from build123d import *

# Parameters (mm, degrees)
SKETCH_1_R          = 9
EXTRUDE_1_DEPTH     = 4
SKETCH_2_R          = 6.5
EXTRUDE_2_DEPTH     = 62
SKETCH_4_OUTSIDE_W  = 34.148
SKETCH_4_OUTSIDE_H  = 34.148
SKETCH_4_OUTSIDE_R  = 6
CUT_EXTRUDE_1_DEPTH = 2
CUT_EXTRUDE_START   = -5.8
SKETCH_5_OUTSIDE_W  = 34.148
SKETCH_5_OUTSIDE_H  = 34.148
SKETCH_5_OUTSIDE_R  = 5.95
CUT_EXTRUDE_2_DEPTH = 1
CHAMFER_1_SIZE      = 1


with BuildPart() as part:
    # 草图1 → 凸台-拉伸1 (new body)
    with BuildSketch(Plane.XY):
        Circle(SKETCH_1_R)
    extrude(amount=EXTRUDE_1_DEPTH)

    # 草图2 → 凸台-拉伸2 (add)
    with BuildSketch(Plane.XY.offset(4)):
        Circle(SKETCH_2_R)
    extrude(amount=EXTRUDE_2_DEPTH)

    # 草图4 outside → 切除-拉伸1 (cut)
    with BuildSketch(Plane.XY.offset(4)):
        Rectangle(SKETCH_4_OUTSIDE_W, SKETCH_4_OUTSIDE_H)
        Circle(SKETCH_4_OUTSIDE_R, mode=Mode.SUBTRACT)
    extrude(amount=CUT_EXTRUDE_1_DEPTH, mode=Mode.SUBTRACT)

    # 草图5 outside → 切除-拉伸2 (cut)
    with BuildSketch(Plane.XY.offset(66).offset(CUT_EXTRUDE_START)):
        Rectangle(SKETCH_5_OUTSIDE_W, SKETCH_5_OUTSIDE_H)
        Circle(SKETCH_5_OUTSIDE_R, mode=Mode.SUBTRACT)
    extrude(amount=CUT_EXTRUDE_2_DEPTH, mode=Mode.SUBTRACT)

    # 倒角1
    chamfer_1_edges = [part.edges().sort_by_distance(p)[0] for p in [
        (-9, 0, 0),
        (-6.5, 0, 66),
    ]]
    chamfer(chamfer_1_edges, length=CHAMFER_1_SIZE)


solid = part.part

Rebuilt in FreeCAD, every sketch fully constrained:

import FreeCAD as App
import Part
import Sketcher
from FreeCAD import Vector
Q = App.Units.Quantity


def edges_at(feature, points):
    """Names of the edges that pass closest to the given points."""
    edges = feature.Shape.Edges
    near = lambda p: min(range(len(edges)), key=lambda i: edges[i].distToShape(Part.Vertex(*p))[0])
    return sorted({f"Edge{near(p) + 1}" for p in points})

doc = App.newDocument("Part")
body = doc.addObject("PartDesign::Body", "Body")

sketch1 = doc.addObject("Sketcher::SketchObject", "Sketch")
body.addObject(sketch1)
sketch1.AttachmentSupport = (doc.XY_Plane, [""])
sketch1.MapMode = "FlatFace"
sketch1.addGeometry(Part.Circle(Vector(0, 0, 0), Vector(0, 0, 1), 9), False)
sketch1.addConstraint(Sketcher.Constraint("Coincident", 0, 3, -1, 1))
sketch1.addConstraint(Sketcher.Constraint("Diameter", 0, Q("18 mm")))
pad1 = doc.addObject("PartDesign::Pad", "Pad")
body.addObject(pad1)
pad1.Profile = sketch1
pad1.Length = 4

sketch2 = doc.addObject("Sketcher::SketchObject", "Sketch001")
body.addObject(sketch2)
sketch2.AttachmentSupport = (doc.XY_Plane, [""])
sketch2.MapMode = "FlatFace"
sketch2.AttachmentOffset = App.Placement(Vector(0, 0, 4), App.Rotation())
sketch2.addGeometry(Part.Circle(Vector(0, 0, 0), Vector(0, 0, 1), 6.5), False)
sketch2.addConstraint(Sketcher.Constraint("Coincident", 0, 3, -1, 1))
sketch2.addConstraint(Sketcher.Constraint("Diameter", 0, Q("13 mm")))
pad2 = doc.addObject("PartDesign::Pad", "Pad001")
body.addObject(pad2)
pad2.Profile = sketch2
pad2.Length = 62

sketch3 = doc.addObject("Sketcher::SketchObject", "Sketch002")
body.addObject(sketch3)
sketch3.AttachmentSupport = (doc.XY_Plane, [""])
sketch3.MapMode = "FlatFace"
sketch3.AttachmentOffset = App.Placement(Vector(0, 0, 4), App.Rotation())
sketch3.addGeometry(Part.LineSegment(Vector(-17.074, 17.074, 0), Vector(-17.074, -17.074, 0)), False)
sketch3.addGeometry(Part.LineSegment(Vector(-17.074, -17.074, 0), Vector(17.074, -17.074, 0)), False)
sketch3.addGeometry(Part.LineSegment(Vector(17.074, -17.074, 0), Vector(17.074, 17.074, 0)), False)
sketch3.addGeometry(Part.LineSegment(Vector(17.074, 17.074, 0), Vector(-17.074, 17.074, 0)), False)
sketch3.addGeometry(Part.Circle(Vector(0, 0, 0), Vector(0, 0, 1), 6), False)
sketch3.addConstraint(Sketcher.Constraint("Coincident", 0, 2, 1, 1))
sketch3.addConstraint(Sketcher.Constraint("Coincident", 1, 2, 2, 1))
sketch3.addConstraint(Sketcher.Constraint("Coincident", 2, 2, 3, 1))
sketch3.addConstraint(Sketcher.Constraint("Coincident", 3, 2, 0, 1))
sketch3.addConstraint(Sketcher.Constraint("Vertical", 0))
sketch3.addConstraint(Sketcher.Constraint("Horizontal", 1))
sketch3.addConstraint(Sketcher.Constraint("Vertical", 2))
sketch3.addConstraint(Sketcher.Constraint("Horizontal", 3))
sketch3.addConstraint(Sketcher.Constraint("Coincident", 4, 3, -1, 1))
sketch3.addConstraint(Sketcher.Constraint("Symmetric", 0, 2, 2, 2, -1, 1))
sketch3.addConstraint(Sketcher.Constraint("Equal", 3, 0))
sketch3.addConstraint(Sketcher.Constraint("Diameter", 4, Q("12 mm")))
sketch3.addConstraint(Sketcher.Constraint("DistanceX", 1, 1, 1, 2, Q("34.148 mm")))
pocket1 = doc.addObject("PartDesign::Pocket", "Pocket")
body.addObject(pocket1)
pocket1.Profile = sketch3
pocket1.Length = 2
pocket1.Reversed = True

sketch4 = doc.addObject("Sketcher::SketchObject", "Sketch003")
body.addObject(sketch4)
sketch4.AttachmentSupport = (doc.XY_Plane, [""])
sketch4.MapMode = "FlatFace"
sketch4.AttachmentOffset = App.Placement(Vector(0, 0, 60.2), App.Rotation())
sketch4.addGeometry(Part.LineSegment(Vector(-17.074, 17.074, 0), Vector(-17.074, -17.074, 0)), False)
sketch4.addGeometry(Part.LineSegment(Vector(-17.074, -17.074, 0), Vector(17.074, -17.074, 0)), False)
sketch4.addGeometry(Part.LineSegment(Vector(17.074, -17.074, 0), Vector(17.074, 17.074, 0)), False)
sketch4.addGeometry(Part.LineSegment(Vector(17.074, 17.074, 0), Vector(-17.074, 17.074, 0)), False)
sketch4.addGeometry(Part.Circle(Vector(0, 0, 0), Vector(0, 0, 1), 5.95), False)
sketch4.addConstraint(Sketcher.Constraint("Coincident", 0, 2, 1, 1))
sketch4.addConstraint(Sketcher.Constraint("Coincident", 1, 2, 2, 1))
sketch4.addConstraint(Sketcher.Constraint("Coincident", 2, 2, 3, 1))
sketch4.addConstraint(Sketcher.Constraint("Coincident", 3, 2, 0, 1))
sketch4.addConstraint(Sketcher.Constraint("Vertical", 0))
sketch4.addConstraint(Sketcher.Constraint("Horizontal", 1))
sketch4.addConstraint(Sketcher.Constraint("Vertical", 2))
sketch4.addConstraint(Sketcher.Constraint("Horizontal", 3))
sketch4.addConstraint(Sketcher.Constraint("Coincident", 4, 3, -1, 1))
sketch4.addConstraint(Sketcher.Constraint("Symmetric", 0, 2, 2, 2, -1, 1))
sketch4.addConstraint(Sketcher.Constraint("Equal", 3, 0))
sketch4.addConstraint(Sketcher.Constraint("Diameter", 4, Q("11.9 mm")))
sketch4.addConstraint(Sketcher.Constraint("DistanceX", 1, 1, 1, 2, Q("34.148 mm")))
pocket2 = doc.addObject("PartDesign::Pocket", "Pocket001")
body.addObject(pocket2)
pocket2.Profile = sketch4
pocket2.Length = 1
pocket2.Reversed = True
doc.recompute()

chamfer = doc.addObject("PartDesign::Chamfer", "Chamfer")
body.addObject(chamfer)
chamfer.Base = (pocket2, edges_at(pocket2, [(-9, 0, 0), (-6.5, 0, 66)]))
chamfer.Size = 1

doc.recompute()
